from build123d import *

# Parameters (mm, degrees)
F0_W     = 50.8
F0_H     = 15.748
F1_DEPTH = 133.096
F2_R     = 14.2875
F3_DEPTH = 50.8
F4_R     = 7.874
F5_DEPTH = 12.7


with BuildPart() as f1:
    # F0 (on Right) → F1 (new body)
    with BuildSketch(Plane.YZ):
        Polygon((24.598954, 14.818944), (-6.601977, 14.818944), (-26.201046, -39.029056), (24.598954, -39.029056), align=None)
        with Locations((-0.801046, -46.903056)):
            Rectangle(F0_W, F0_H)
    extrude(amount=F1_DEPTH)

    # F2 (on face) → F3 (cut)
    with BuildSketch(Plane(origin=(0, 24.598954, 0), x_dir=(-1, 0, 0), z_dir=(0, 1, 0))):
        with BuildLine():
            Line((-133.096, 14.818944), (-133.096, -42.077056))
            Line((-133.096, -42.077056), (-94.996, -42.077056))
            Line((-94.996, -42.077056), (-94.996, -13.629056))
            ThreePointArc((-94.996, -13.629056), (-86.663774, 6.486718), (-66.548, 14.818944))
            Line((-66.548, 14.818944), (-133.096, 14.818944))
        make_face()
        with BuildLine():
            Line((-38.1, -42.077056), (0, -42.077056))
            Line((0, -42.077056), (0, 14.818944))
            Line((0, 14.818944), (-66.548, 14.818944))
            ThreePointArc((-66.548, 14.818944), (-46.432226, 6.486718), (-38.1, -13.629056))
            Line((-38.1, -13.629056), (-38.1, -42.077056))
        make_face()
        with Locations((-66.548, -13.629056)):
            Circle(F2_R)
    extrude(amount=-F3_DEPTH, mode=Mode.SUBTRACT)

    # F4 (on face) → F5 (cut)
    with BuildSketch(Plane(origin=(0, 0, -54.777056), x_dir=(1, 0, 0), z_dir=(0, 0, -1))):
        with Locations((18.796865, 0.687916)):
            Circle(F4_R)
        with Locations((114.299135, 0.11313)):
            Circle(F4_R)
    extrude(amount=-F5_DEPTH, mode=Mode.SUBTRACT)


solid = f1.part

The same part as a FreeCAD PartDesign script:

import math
import FreeCAD as App
import Part
import Sketcher

V = App.Vector
Q = App.Units.Quantity


def add_polygon(sketch, points):
    """Adds a closed chain of lines whose ends are joined by coincident constraints."""
    first, n = sketch.GeometryCount, len(points)
    for a, b in zip(points, points[1:] + points[:1]):
        sketch.addGeometry(Part.LineSegment(App.Vector(*a, 0), App.Vector(*b, 0)), False)
    for i in range(n):
        sketch.addConstraint(Sketcher.Constraint("Coincident", first + i, 2, first + (i + 1) % n, 1))

doc = App.newDocument("Part")
body = doc.addObject("PartDesign::Body", "Body")

# Sketch on YZ plane
sketch1 = body.newObject("Sketcher::SketchObject", "Sketch")
sketch1.AttachmentSupport = (doc.getObject("YZ_Plane"), [""])
sketch1.MapMode = "FlatFace"
add_polygon(sketch1, [(24.598954, 14.818944), (-6.601977, 14.818944), (-26.201046, -39.029056), (-26.201046, -54.777056), (24.598954, -54.777056)])  # lines 0-4
sketch1.addConstraint([
    Sketcher.Constraint("Horizontal", 0),
    Sketcher.Constraint("Vertical", 2),
    Sketcher.Constraint("Horizontal", 3),
    Sketcher.Constraint("Vertical", 4),
    Sketcher.Constraint("DistanceX", 3, 1, 3, 2, Q("2 in")),
    Sketcher.Constraint("Angle", 1, Q("-110 deg")),
    Sketcher.Constraint("DistanceY", 2, 2, 2, 1, Q("0.62 in")),
    Sketcher.Constraint("DistanceY", 4, 1, 4, 2, Q("2.74 in")),
    Sketcher.Constraint("DistanceX", 0, 2, -1, 1, Q("6.601977 mm")),
    Sketcher.Constraint("DistanceY", -1, 1, 0, 2, Q("14.818944 mm")),
])
pad1 = body.newObject("PartDesign::Pad", "Pad")
pad1.Profile = sketch1
pad1.Length = Q("5.24 in")

# Sketch on XZ plane
sketch2 = body.newObject("Sketcher::SketchObject", "Sketch001")
sketch2.AttachmentSupport = (doc.getObject("XZ_Plane"), [""])
sketch2.MapMode = "FlatFace"
sketch2.AttachmentOffset = App.Placement(V(0, 0, -24.598954), App.Rotation())
sketch2.addGeometry([
    Part.LineSegment(V(133.096, 14.818944, 0), V(133.096, -42.077056, 0)),  # 0
    Part.LineSegment(V(133.096, -42.077056, 0), V(94.996, -42.077056, 0)),  # 1
    Part.LineSegment(V(94.996, -42.077056, 0), V(94.996, -13.629056, 0)),  # 2
    Part.ArcOfCircle(Part.Circle(V(66.548001, -13.629055, 0), V(0, 0, 1), 28.447999), math.radians(-0.000002), math.radians(90.000002)),  # 3
    Part.LineSegment(V(66.548, 14.818944, 0), V(133.096, 14.818944, 0)),  # 4
    Part.LineSegment(V(38.1, -42.077056, 0), V(0, -42.077056, 0)),  # 5
    Part.LineSegment(V(0, -42.077056, 0), V(0, 14.818944, 0)),  # 6
    Part.LineSegment(V(0, 14.818944, 0), V(66.548, 14.818944, 0)),  # 7
    Part.ArcOfCircle(Part.Circle(V(66.547999, -13.629055, 0), V(0, 0, 1), 28.447999), math.radians(89.999998), math.radians(180.000002)),  # 8
    Part.LineSegment(V(38.1, -13.629056, 0), V(38.1, -42.077056, 0)),  # 9
    Part.Circle(V(66.548, -13.629056, 0), V(0, 0, 1), 14.2875),  # 10
], False)
sketch2.addConstraint([
    Sketcher.Constraint("Coincident", 0, 2, 1, 1),
    Sketcher.Constraint("Coincident", 1, 2, 2, 1),
    Sketcher.Constraint("Tangent", 2, 2, 3, 1),
    Sketcher.Constraint("Tangent", 3, 2, 4, 1),
    Sketcher.Constraint("Coincident", 4, 2, 0, 1),
    Sketcher.Constraint("Coincident", 5, 2, 6, 1),
    Sketcher.Constraint("Coincident", 6, 2, 7, 1),
    Sketcher.Constraint("Tangent", 7, 2, 8, 1),
    Sketcher.Constraint("Tangent", 8, 2, 9, 1),
    Sketcher.Constraint("Coincident", 9, 2, 5, 1),
    Sketcher.Constraint("Vertical", 0),
    Sketcher.Constraint("Horizontal", 1),
    Sketcher.Constraint("Vertical", 2),
    Sketcher.Constraint("Horizontal", 4),
    Sketcher.Constraint("Horizontal", 5),
    Sketcher.Constraint("Vertical", 6),
    Sketcher.Constraint("Horizontal", 7),
    Sketcher.Constraint("Vertical", 9),
    Sketcher.Constraint("Coincident", 8, 3, 3, 3),
    Sketcher.Constraint("Coincident", 10, 3, 3, 3),
    Sketcher.Constraint("Equal", 3, 8),
    Sketcher.Constraint("PointOnObject", 5, 2, -2),
    Sketcher.Constraint("Horizontal", 1, 2, 5, 2),
    Sketcher.Constraint("Equal", 1, 5),
    Sketcher.Constraint("Radius", 3, Q("1.12 in")),
    Sketcher.Constraint("Diameter", 10, Q("1.125 in")),
    Sketcher.Constraint("DistanceX", 1, 2, 1, 1, Q("1.5 in")),
    Sketcher.Constraint("DistanceY", 0, 2, 0, 1, Q("2.24 in")),
    Sketcher.Constraint("DistanceY", 3, 3, -1, 1, Q("13.629055 mm")),
])
pocket1 = body.newObject("PartDesign::Pocket", "Pocket")
pocket1.Profile = sketch2
pocket1.Length = Q("2 in")
pocket1.Reversed = True

# Sketch on XY plane
sketch3 = body.newObject("Sketcher::SketchObject", "Sketch002")
sketch3.AttachmentSupport = (doc.getObject("XY_Plane"), [""])
sketch3.MapMode = "FlatFace"
sketch3.AttachmentOffset = App.Placement(V(0, 0, -54.777056), App.Rotation())
sketch3.addGeometry([
    Part.Circle(V(18.796865, -0.687916, 0), V(0, 0, 1), 7.874),
    Part.Circle(V(114.299135, -0.11313, 0), V(0, 0, 1), 7.874),
], False)
sketch3.addConstraint([
    Sketcher.Constraint("Equal", 0, 1),
    Sketcher.Constraint("Diameter", 0, Q("0.62 in")),
    Sketcher.Constraint("DistanceY", 1, 3, -1, 1, Q("0.11313 mm")),
    Sketcher.Constraint("DistanceX", 0, 3, 1, 3, Q("95.50227 mm")),
    Sketcher.Constraint("DistanceX", -1, 1, 0, 3, Q("18.796865 mm")),
    Sketcher.Constraint("DistanceY", 0, 3, -1, 1, Q("0.687916 mm")),
])
pocket2 = body.newObject("PartDesign::Pocket", "Pocket001")
pocket2.Profile = sketch3
pocket2.Length = Q("0.5 in")
pocket2.Reversed = True

doc.recompute()
